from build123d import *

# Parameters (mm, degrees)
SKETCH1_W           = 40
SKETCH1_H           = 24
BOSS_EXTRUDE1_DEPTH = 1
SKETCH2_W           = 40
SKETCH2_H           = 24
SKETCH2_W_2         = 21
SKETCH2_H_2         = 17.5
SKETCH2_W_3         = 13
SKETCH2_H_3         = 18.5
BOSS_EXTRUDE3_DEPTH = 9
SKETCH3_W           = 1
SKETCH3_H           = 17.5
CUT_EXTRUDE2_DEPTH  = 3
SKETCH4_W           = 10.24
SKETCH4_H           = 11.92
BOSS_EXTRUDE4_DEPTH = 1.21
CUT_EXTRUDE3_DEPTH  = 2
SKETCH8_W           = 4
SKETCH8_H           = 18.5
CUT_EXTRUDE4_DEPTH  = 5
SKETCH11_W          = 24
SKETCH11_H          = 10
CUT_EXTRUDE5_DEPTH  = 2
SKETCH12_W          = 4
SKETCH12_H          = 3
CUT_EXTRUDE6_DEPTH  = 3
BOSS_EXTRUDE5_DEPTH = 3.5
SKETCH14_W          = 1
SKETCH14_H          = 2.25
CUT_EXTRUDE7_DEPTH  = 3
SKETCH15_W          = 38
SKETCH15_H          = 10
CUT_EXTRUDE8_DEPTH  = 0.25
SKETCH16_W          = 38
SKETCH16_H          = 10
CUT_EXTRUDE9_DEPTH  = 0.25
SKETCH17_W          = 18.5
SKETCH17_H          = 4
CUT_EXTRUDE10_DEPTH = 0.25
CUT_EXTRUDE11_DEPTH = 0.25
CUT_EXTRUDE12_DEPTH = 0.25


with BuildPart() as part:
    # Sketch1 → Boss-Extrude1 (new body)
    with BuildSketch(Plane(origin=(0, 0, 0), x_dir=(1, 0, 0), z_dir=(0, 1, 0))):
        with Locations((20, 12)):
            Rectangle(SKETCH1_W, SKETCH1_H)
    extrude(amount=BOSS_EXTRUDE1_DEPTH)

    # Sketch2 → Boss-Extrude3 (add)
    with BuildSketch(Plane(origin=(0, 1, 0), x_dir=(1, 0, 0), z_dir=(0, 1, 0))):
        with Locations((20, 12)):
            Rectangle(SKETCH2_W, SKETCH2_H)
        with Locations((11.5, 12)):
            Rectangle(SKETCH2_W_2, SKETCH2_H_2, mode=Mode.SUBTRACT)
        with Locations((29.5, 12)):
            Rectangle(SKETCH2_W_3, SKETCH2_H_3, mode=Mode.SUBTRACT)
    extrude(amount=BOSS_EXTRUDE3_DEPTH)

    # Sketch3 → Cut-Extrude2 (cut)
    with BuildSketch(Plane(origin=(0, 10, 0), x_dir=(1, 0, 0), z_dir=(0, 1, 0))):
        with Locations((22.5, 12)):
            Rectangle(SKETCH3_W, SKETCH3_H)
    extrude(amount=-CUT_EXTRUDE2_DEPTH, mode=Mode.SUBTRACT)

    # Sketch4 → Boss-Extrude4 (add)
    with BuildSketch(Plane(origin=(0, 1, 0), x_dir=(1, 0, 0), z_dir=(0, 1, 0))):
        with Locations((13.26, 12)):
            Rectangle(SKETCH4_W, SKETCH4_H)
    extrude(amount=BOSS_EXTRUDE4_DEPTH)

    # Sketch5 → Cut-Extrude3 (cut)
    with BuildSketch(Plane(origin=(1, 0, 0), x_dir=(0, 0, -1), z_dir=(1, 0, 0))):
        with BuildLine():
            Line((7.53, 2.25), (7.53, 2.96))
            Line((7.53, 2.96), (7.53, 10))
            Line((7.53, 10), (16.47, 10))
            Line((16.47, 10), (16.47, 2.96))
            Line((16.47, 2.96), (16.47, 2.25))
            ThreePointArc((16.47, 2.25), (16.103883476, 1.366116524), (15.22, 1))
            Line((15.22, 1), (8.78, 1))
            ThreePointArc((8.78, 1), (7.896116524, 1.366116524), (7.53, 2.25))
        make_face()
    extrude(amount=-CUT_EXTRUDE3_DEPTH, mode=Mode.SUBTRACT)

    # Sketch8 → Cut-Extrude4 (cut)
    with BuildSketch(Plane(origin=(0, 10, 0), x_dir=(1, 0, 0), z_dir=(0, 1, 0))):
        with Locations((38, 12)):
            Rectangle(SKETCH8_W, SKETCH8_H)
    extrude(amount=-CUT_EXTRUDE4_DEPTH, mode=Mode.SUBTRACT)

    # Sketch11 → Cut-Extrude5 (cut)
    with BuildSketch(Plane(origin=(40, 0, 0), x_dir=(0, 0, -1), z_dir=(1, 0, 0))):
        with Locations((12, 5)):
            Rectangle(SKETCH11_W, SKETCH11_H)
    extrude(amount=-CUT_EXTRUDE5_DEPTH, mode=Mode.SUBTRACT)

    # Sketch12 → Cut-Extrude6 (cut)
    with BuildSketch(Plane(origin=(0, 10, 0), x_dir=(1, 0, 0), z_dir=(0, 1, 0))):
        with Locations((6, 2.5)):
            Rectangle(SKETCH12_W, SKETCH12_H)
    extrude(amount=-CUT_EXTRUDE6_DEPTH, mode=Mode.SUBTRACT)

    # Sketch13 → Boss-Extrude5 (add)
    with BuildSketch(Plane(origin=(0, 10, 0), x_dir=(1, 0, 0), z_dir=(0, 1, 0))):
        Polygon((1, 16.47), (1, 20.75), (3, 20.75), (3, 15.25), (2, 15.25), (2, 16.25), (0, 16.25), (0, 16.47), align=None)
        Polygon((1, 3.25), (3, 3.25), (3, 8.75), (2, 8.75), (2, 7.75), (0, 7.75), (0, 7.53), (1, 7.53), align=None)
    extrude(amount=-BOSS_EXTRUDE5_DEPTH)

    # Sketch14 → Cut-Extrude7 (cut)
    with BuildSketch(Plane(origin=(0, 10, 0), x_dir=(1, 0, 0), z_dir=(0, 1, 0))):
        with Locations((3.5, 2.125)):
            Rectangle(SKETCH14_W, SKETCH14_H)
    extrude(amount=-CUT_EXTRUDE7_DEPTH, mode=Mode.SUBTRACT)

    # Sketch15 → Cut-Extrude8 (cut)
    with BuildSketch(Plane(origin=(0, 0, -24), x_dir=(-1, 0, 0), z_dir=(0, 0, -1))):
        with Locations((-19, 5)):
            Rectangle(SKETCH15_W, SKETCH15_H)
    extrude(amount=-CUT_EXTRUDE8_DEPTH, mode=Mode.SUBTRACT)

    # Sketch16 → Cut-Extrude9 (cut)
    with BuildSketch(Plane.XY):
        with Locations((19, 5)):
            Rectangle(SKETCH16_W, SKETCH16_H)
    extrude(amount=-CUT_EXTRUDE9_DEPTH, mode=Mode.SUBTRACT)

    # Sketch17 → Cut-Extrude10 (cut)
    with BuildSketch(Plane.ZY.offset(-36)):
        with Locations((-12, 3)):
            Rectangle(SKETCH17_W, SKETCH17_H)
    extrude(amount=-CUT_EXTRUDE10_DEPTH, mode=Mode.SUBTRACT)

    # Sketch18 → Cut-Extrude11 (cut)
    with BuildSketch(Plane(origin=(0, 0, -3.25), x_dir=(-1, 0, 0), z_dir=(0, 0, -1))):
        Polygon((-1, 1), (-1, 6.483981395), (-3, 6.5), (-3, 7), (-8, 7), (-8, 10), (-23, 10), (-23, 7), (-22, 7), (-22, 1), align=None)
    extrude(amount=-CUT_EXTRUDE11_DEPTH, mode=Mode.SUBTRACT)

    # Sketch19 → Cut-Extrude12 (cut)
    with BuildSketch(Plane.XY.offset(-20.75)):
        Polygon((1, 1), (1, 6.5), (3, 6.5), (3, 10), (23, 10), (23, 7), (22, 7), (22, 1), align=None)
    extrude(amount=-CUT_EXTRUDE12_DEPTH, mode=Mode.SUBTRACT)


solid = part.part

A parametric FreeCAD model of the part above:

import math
import FreeCAD as App
import Part
import Sketcher
from FreeCAD import Vector

doc = App.newDocument("Part")
body = doc.addObject("PartDesign::Body", "Body")

sketch1 = doc.addObject("Sketcher::SketchObject", "Sketch")
body.addObject(sketch1)
sketch1.AttachmentSupport = (doc.XZ_Plane, [""])
sketch1.MapMode = "FlatFace"
sketch1.addGeometry([
    Part.LineSegment(Vector(0, -24, 0), Vector(0, 0, 0)),
    Part.LineSegment(Vector(0, 0, 0), Vector(40, 0, 0)),
    Part.LineSegment(Vector(40, 0, 0), Vector(40, -24, 0)),
    Part.LineSegment(Vector(40, -24, 0), Vector(0, -24, 0)),
], False)
sketch1.addConstraint([
    Sketcher.Constraint("Coincident", 0, 2, 1, 1),
    Sketcher.Constraint("Coincident", 1, 2, 2, 1),
    Sketcher.Constraint("Coincident", 2, 2, 3, 1),
    Sketcher.Constraint("Coincident", 3, 2, 0, 1),
    Sketcher.Constraint("Vertical", 0),
    Sketcher.Constraint("Horizontal", 1),
    Sketcher.Constraint("Vertical", 2),
    Sketcher.Constraint("Horizontal", 3),
    Sketcher.Constraint("Coincident", 0, 2, -1, 1),
    Sketcher.Constraint("DistanceX", 1, 1, 1, 2, 40.0),
    Sketcher.Constraint("DistanceY", 0, 1, 0, 2, 24.0),
])
pad1 = doc.addObject("PartDesign::Pad", "Pad")
body.addObject(pad1)
pad1.Profile = sketch1
pad1.Length = 1
pad1.Reversed = True

sketch2 = doc.addObject("Sketcher::SketchObject", "Sketch001")
body.addObject(sketch2)
sketch2.AttachmentSupport = (doc.XZ_Plane, [""])
sketch2.MapMode = "FlatFace"
sketch2.AttachmentOffset = App.Placement(Vector(0, 0, -1), App.Rotation())
sketch2.addGeometry([
    Part.LineSegment(Vector(0, -24, 0), Vector(0, 0, 0)),
    Part.LineSegment(Vector(0, 0, 0), Vector(40, 0, 0)),
    Part.LineSegment(Vector(40, 0, 0), Vector(40, -24, 0)),
    Part.LineSegment(Vector(40, -24, 0), Vector(0, -24, 0)),
    Part.LineSegment(Vector(22, -3, 0), Vector(1, -3, 0)),
    Part.LineSegment(Vector(1, -3, 0), Vector(1, -21, 0)),
    Part.LineSegment(Vector(1, -21, 0), Vector(22, -21, 0)),
    Part.LineSegment(Vector(22, -21, 0), Vector(22, -3, 0)),
    Part.LineSegment(Vector(36, -3, 0), Vector(23, -3, 0)),
    Part.LineSegment(Vector(23, -3, 0), Vector(23, -21, 0)),
    Part.LineSegment(Vector(23, -21, 0), Vector(36, -21, 0)),
    Part.LineSegment(Vector(36, -21, 0), Vector(36, -3, 0)),
], False)
sketch2.addConstraint([
    Sketcher.Constraint("Coincident", 0, 2, 1, 1),
    Sketcher.Constraint("Coincident", 1, 2, 2, 1),
    Sketcher.Constraint("Coincident", 2, 2, 3, 1),
    Sketcher.Constraint("Coincident", 3, 2, 0, 1),
    Sketcher.Constraint("Coincident", 4, 2, 5, 1),
    Sketcher.Constraint("Coincident", 5, 2, 6, 1),
    Sketcher.Constraint("Coincident", 6, 2, 7, 1),
    Sketcher.Constraint("Coincident", 7, 2, 4, 1),
    Sketcher.Constraint("Coincident", 8, 2, 9, 1),
    Sketcher.Constraint("Coincident", 9, 2, 10, 1),
    Sketcher.Constraint("Coincident", 10, 2, 11, 1),
    Sketcher.Constraint("Coincident", 11, 2, 8, 1),
    Sketcher.Constraint("Vertical", 0),
    Sketcher.Constraint("Horizontal", 1),
    Sketcher.Constraint("Vertical", 2),
    Sketcher.Constraint("Horizontal", 3),
    Sketcher.Constraint("Horizontal", 4),
    Sketcher.Constraint("Vertical", 5),
    Sketcher.Constraint("Horizontal", 6),
    Sketcher.Constraint("Vertical", 7),
    Sketcher.Constraint("Horizontal", 8),
    Sketcher.Constraint("Vertical", 9),
    Sketcher.Constraint("Horizontal", 10),
    Sketcher.Constraint("Vertical", 11),
    Sketcher.Constraint("Coincident", 0, 2, -1, 1),
    Sketcher.Constraint("DistanceX", 1, 1, 1, 2, 40.0),
    Sketcher.Constraint("DistanceX", 4, 2, 4, 1, 21.0),
    Sketcher.Constraint("DistanceX", 8, 2, 8, 1, 13.0),
    Sketcher.Constraint("DistanceY", 0, 1, 0, 2, 24.0),
    Sketcher.Constraint("DistanceY", 5, 2, 5, 1, 17.5),
    Sketcher.Constraint("DistanceY", 9, 2, 9, 1, 18.5),
    Sketcher.Constraint("DistanceX", -1, 1, 4, 2, 1.0),
    Sketcher.Constraint("DistanceX", -1, 1, 8, 2, 23.0),
    Sketcher.Constraint("DistanceY", 6, 2, 8, 2, 18.0),
    Sketcher.Constraint("DistanceY", 4, 2, -1, 1, 3.25),
])
pad2 = doc.addObject("PartDesign::Pad", "Pad001")
body.addObject(pad2)
pad2.Profile = sketch2
pad2.Length = 9
pad2.Reversed = True

sketch3 = doc.addObject("Sketcher::SketchObject", "Sketch002")
body.addObject(sketch3)
sketch3.AttachmentSupport = (doc.XZ_Plane, [""])
sketch3.MapMode = "FlatFace"
sketch3.AttachmentOffset = App.Placement(Vector(0, 0, -10), App.Rotation())
sketch3.addGeometry([
    Part.LineSegment(Vector(22, -20.8, 0), Vector(22, -3.2, 0)),
    Part.LineSegment(Vector(22, -3.2, 0), Vector(23, -3.2, 0)),
    Part.LineSegment(Vector(23, -3.2, 0), Vector(23, -20.8, 0)),
    Part.LineSegment(Vector(23, -20.8, 0), Vector(22, -20.8, 0)),
], False)
sketch3.addConstraint([
    Sketcher.Constraint("Coincident", 0, 2, 1, 1),
    Sketcher.Constraint("Coincident", 1, 2, 2, 1),
    Sketcher.Constraint("Coincident", 2, 2, 3, 1),
    Sketcher.Constraint("Coincident", 3, 2, 0, 1),
    Sketcher.Constraint("Vertical", 0),
    Sketcher.Constraint("Horizontal", 1),
    Sketcher.Constraint("Vertical", 2),
    Sketcher.Constraint("Horizontal", 3),
    Sketcher.Constraint("DistanceX", 1, 1, 1, 2, 1.0),
    Sketcher.Constraint("DistanceY", 0, 1, 0, 2, 17.5),
    Sketcher.Constraint("DistanceX", -1, 1, 0, 2, 22.0),
    Sketcher.Constraint("DistanceY", 0, 2, -1, 1, 3.25),
])
pocket1 = doc.addObject("PartDesign::Pocket", "Pocket")
body.addObject(pocket1)
pocket1.Profile = sketch3
pocket1.Length = 3
pocket1.Reversed = True

sketch4 = doc.addObject("Sketcher::SketchObject", "Sketch003")
body.addObject(sketch4)
sketch4.AttachmentSupport = (doc.XZ_Plane, [""])
sketch4.MapMode = "FlatFace"
sketch4.AttachmentOffset = App.Placement(Vector(0, 0, -1), App.Rotation())
sketch4.addGeometry([
    Part.LineSegment(Vector(8, -18, 0), Vector(8, -6, 0)),
    Part.LineSegment(Vector(8, -6, 0), Vector(18, -6, 0)),
    Part.LineSegment(Vector(18, -6, 0), Vector(18, -18, 0)),
    Part.LineSegment(Vector(18, -18, 0), Vector(8, -18, 0)),
], False)
sketch4.addConstraint([
    Sketcher.Constraint("Coincident", 0, 2, 1, 1),
    Sketcher.Constraint("Coincident", 1, 2, 2, 1),
    Sketcher.Constraint("Coincident", 2, 2, 3, 1),
    Sketcher.Constraint("Coincident", 3, 2, 0, 1),
    Sketcher.Constraint("Vertical", 0),
    Sketcher.Constraint("Horizontal", 1),
    Sketcher.Constraint("Vertical", 2),
    Sketcher.Constraint("Horizontal", 3),
    Sketcher.Constraint("DistanceX", 1, 1, 1, 2, 10.24),
    Sketcher.Constraint("DistanceY", 0, 1, 0, 2, 11.92),
    Sketcher.Constraint("DistanceX", -1, 1, 0, 2, 8.14),
    Sketcher.Constraint("DistanceY", 0, 2, -1, 1, 6.04),
])
pad3 = doc.addObject("PartDesign::Pad", "Pad002")
body.addObject(pad3)
pad3.Profile = sketch4
pad3.Length = 1.21
pad3.Reversed = True

sketch5 = doc.addObject("Sketcher::SketchObject", "Sketch004")
body.addObject(sketch5)
sketch5.AttachmentSupport = (doc.YZ_Plane, [""])
sketch5.MapMode = "FlatFace"
sketch5.AttachmentOffset = App.Placement(Vector(0, 0, 1), App.Rotation())
sketch5.addGeometry([
    Part.LineSegment(Vector(10, -7.5, 0), Vector(2.2, -7.5, 0)),
    Part.ArcOfCircle(Part.Circle(Vector(2.3, -8.8, 0), Vector(0, 0, 1), 1.3), math.radians(90), math.radians(180)),
    Part.LineSegment(Vector(1, -8.8, 0), Vector(1, -15.2, 0)),
    Part.ArcOfCircle(Part.Circle(Vector(2.3, -15.2, 0), Vector(0, 0, 1), 1.3), math.radians(-180), math.radians(-90)),
    Part.LineSegment(Vector(2.2, -16.5, 0), Vector(10, -16.5, 0)),
    Part.LineSegment(Vector(10, -16.5, 0), Vector(10, -7.5, 0)),
], False)
sketch5.addConstraint([
    Sketcher.Constraint("Tangent", 0, 2, 1, 1),
    Sketcher.Constraint("Tangent", 1, 2, 2, 1),
    Sketcher.Constraint("Tangent", 2, 2, 3, 1),
    Sketcher.Constraint("Tangent", 3, 2, 4, 1),
    Sketcher.Constraint("Coincident", 4, 2, 5, 1),
    Sketcher.Constraint("Coincident", 5, 2, 0, 1),
    Sketcher.Constraint("Horizontal", 0),
    Sketcher.Constraint("Vertical", 2),
    Sketcher.Constraint("Horizontal", 4),
    Sketcher.Constraint("Vertical", 5),
    Sketcher.Constraint("Equal", 1, 3),
    Sketcher.Constraint("Radius", 1, 1.25),
    Sketcher.Constraint("DistanceX", -1, 1, 1, 2, 1.0),
    Sketcher.Constraint("DistanceX", -1, 1, 4, 2, 10.0),
    Sketcher.Constraint("DistanceY", 2, 2, 2, 1, 6.44),
    Sketcher.Constraint("DistanceY", 1, 3, -1, 1, 8.78),
])
pocket2 = doc.addObject("PartDesign::Pocket", "Pocket001")
body.addObject(pocket2)
pocket2.Profile = sketch5
pocket2.Length = 2

sketch6 = doc.addObject("Sketcher::SketchObject", "Sketch005")
body.addObject(sketch6)
sketch6.AttachmentSupport = (doc.XZ_Plane, [""])
sketch6.MapMode = "FlatFace"
sketch6.AttachmentOffset = App.Placement(Vector(0, 0, -10), App.Rotation())
sketch6.addGeometry([
    Part.LineSegment(Vector(36, -21.2, 0), Vector(36, -2.8, 0)),
    Part.LineSegment(Vector(36, -2.8, 0), Vector(40, -2.8, 0)),
    Part.LineSegment(Vector(40, -2.8, 0), Vector(40, -21.2, 0)),
    Part.LineSegment(Vector(40, -21.2, 0), Vector(36, -21.2, 0)),
], False)
sketch6.addConstraint([
    Sketcher.Constraint("Coincident", 0, 2, 1, 1),
    Sketcher.Constraint("Coincident", 1, 2, 2, 1),
    Sketcher.Constraint("Coincident", 2, 2, 3, 1),
    Sketcher.Constraint("Coincident", 3, 2, 0, 1),
    Sketcher.Constraint("Vertical", 0),
    Sketcher.Constraint("Horizontal", 1),
    Sketcher.Constraint("Vertical", 2),
    Sketcher.Constraint("Horizontal", 3),
    Sketcher.Constraint("DistanceX", 1, 1, 1, 2, 4.0),
    Sketcher.Constraint("DistanceY", 0, 1, 0, 2, 18.5),
    Sketcher.Constraint("DistanceX", -1, 1, 0, 2, 36.0),
    Sketcher.Constraint("DistanceY", 0, 2, -1, 1, 2.75),
])
pocket3 = doc.addObject("PartDesign::Pocket", "Pocket002")
body.addObject(pocket3)
pocket3.Profile = sketch6
pocket3.Length = 5
pocket3.Reversed = True

sketch7 = doc.addObject("Sketcher::SketchObject", "Sketch006")
body.addObject(sketch7)
sketch7.AttachmentSupport = (doc.YZ_Plane, [""])
sketch7.MapMode = "FlatFace"
sketch7.AttachmentOffset = App.Placement(Vector(0, 0, 40), App.Rotation())
sketch7.addGeometry([
    Part.LineSegment(Vector(10, 0, 0), Vector(0, 0, 0)),
    Part.LineSegment(Vector(0, 0, 0), Vector(0, -24, 0)),
    Part.LineSegment(Vector(0, -24, 0), Vector(10, -24, 0)),
    Part.LineSegment(Vector(10, -24, 0), Vector(10, 0, 0)),
], False)
sketch7.addConstraint([
    Sketcher.Constraint("Coincident", 0, 2, 1, 1),
    Sketcher.Constraint("Coincident", 1, 2, 2, 1),
    Sketcher.Constraint("Coincident", 2, 2, 3, 1),
    Sketcher.Constraint("Coincident", 3, 2, 0, 1),
    Sketcher.Constraint("Horizontal", 0),
    Sketcher.Constraint("Vertical", 1),
    Sketcher.Constraint("Horizontal", 2),
    Sketcher.Constraint("Vertical", 3),
    Sketcher.Constraint("Coincident", 0, 2, -1, 1),
    Sketcher.Constraint("DistanceX", 0, 2, 0, 1, 10.0),
    Sketcher.Constraint("DistanceY", 1, 2, 1, 1, 24.0),
])
pocket4 = doc.addObject("PartDesign::Pocket", "Pocket003")
body.addObject(pocket4)
pocket4.Profile = sketch7
pocket4.Length = 2

sketch8 = doc.addObject("Sketcher::SketchObject", "Sketch007")
body.addObject(sketch8)
sketch8.AttachmentSupport = (doc.XZ_Plane, [""])
sketch8.MapMode = "FlatFace"
sketch8.AttachmentOffset = App.Placement(Vector(0, 0, -10), App.Rotation())
sketch8.addGeometry([
    Part.LineSegment(Vector(4, -4, 0), Vector(4, -1, 0)),
    Part.LineSegment(Vector(4, -1, 0), Vector(8, -1, 0)),
    Part.LineSegment(Vector(8, -1, 0), Vector(8, -4, 0)),
    Part.LineSegment(Vector(8, -4, 0), Vector(4, -4, 0)),
], False)
sketch8.addConstraint([
    Sketcher.Constraint("Coincident", 0, 2, 1, 1),
    Sketcher.Constraint("Coincident", 1, 2, 2, 1),
    Sketcher.Constraint("Coincident", 2, 2, 3, 1),
    Sketcher.Constraint("Coincident", 3, 2, 0, 1),
    Sketcher.Constraint("Vertical", 0),
    Sketcher.Constraint("Horizontal", 1),
    Sketcher.Constraint("Vertical", 2),
    Sketcher.Constraint("Horizontal", 3),
    Sketcher.Constraint("DistanceX", 1, 1, 1, 2, 4.0),
    Sketcher.Constraint("DistanceY", 0, 1, 0, 2, 3.0),
    Sketcher.Constraint("DistanceX", -1, 1, 0, 2, 4.0),
    Sketcher.Constraint("DistanceY", 0, 2, -1, 1, 1.0),
])
pocket5 = doc.addObject("PartDesign::Pocket", "Pocket004")
body.addObject(pocket5)
pocket5.Profile = sketch8
pocket5.Length = 3
pocket5.Reversed = True

sketch9 = doc.addObject("Sketcher::SketchObject", "Sketch008")
body.addObject(sketch9)
sketch9.AttachmentSupport = (doc.XZ_Plane, [""])
sketch9.MapMode = "FlatFace"
sketch9.AttachmentOffset = App.Placement(Vector(0, 0, -10), App.Rotation())
sketch9.addGeometry([
    Part.LineSegment(Vector(1, -20.75, 0), Vector(1, -16.47, 0)),
    Part.LineSegment(Vector(1, -16.47, 0), Vector(0, -16.47, 0)),
    Part.LineSegment(Vector(0, -16.47, 0), Vector(0, -16.25, 0)),
    Part.LineSegment(Vector(0, -16.25, 0), Vector(2, -16.25, 0)),
    Part.LineSegment(Vector(2, -16.25, 0), Vector(2, -15.25, 0)),
    Part.LineSegment(Vector(2, -15.25, 0), Vector(3, -15.25, 0)),
    Part.LineSegment(Vector(3, -15.25, 0), Vector(3, -20.75, 0)),
    Part.LineSegment(Vector(3, -20.75, 0), Vector(1, -20.75, 0)),
    Part.LineSegment(Vector(1, -3.25, 0), Vector(3, -3.25, 0)),
    Part.LineSegment(Vector(3, -3.25, 0), Vector(3, -8.75, 0)),
    Part.LineSegment(Vector(3, -8.75, 0), Vector(2, -8.75, 0)),
    Part.LineSegment(Vector(2, -8.75, 0), Vector(2, -7.75, 0)),
    Part.LineSegment(Vector(2, -7.75, 0), Vector(0, -7.75, 0)),
    Part.LineSegment(Vector(0, -7.75, 0), Vector(0, -7.53, 0)),
    Part.LineSegment(Vector(0, -7.53, 0), Vector(1, -7.53, 0)),
    Part.LineSegment(Vector(1, -7.53, 0), Vector(1, -3.25, 0)),
], False)
sketch9.addConstraint([
    Sketcher.Constraint("Coincident", 0, 2, 1, 1),
    Sketcher.Constraint("Coincident", 1, 2, 2, 1),
    Sketcher.Constraint("Coincident", 2, 2, 3, 1),
    Sketcher.Constraint("Coincident", 3, 2, 4, 1),
    Sketcher.Constraint("Coincident", 4, 2, 5, 1),
    Sketcher.Constraint("Coincident", 5, 2, 6, 1),
    Sketcher.Constraint("Coincident", 6, 2, 7, 1),
    Sketcher.Constraint("Coincident", 7, 2, 0, 1),
    Sketcher.Constraint("Coincident", 8, 2, 9, 1),
    Sketcher.Constraint("Coincident", 9, 2, 10, 1),
    Sketcher.Constraint("Coincident", 10, 2, 11, 1),
    Sketcher.Constraint("Coincident", 11, 2, 12, 1),
    Sketcher.Constraint("Coincident", 12, 2, 13, 1),
    Sketcher.Constraint("Coincident", 13, 2, 14, 1),
    Sketcher.Constraint("Coincident", 14, 2, 15, 1),
    Sketcher.Constraint("Coincident", 15, 2, 8, 1),
    Sketcher.Constraint("Vertical", 0),
    Sketcher.Constraint("Horizontal", 1),
    Sketcher.Constraint("Vertical", 2),
    Sketcher.Constraint("Horizontal", 3),
    Sketcher.Constraint("Vertical", 4),
    Sketcher.Constraint("Horizontal", 5),
    Sketcher.Constraint("Vertical", 6),
    Sketcher.Constraint("Horizontal", 7),
    Sketcher.Constraint("Horizontal", 8),
    Sketcher.Constraint("Vertical", 9),
    Sketcher.Constraint("Horizontal", 10),
    Sketcher.Constraint("Vertical", 11),
    Sketcher.Constraint("Horizontal", 12),
    Sketcher.Constraint("Vertical", 13),
    Sketcher.Constraint("Horizontal", 14),
    Sketcher.Constraint("Vertical", 15),
    Sketcher.Constraint("PointOnObject", 1, 2, -2),
    Sketcher.Constraint("PointOnObject", 12, 2, -2),
    Sketcher.Constraint("Vertical", 6, 2, 8, 2),
    Sketcher.Constraint("Vertical", 4, 2, 10, 2),
    Sketcher.Constraint("Vertical", 7, 2, 14, 2),
    Sketcher.Constraint("Equal", 1, 5),
    Sketcher.Constraint("Equal", 14, 4),
    Sketcher.Constraint("Equal", 6, 9),
    Sketcher.Constraint("Equal", 4, 11),
    Sketcher.Constraint("Equal", 2, 13),
    Sketcher.Constraint("DistanceX", 1, 2, 1, 1, 1.0),
    Sketcher.Constraint("DistanceX", 3, 1, 3, 2, 2.0),
    Sketcher.Constraint("DistanceY", 6, 2, 6, 1, 5.5),
    Sketcher.Constraint("DistanceY", 5, 2, 8, 2, 12.0),
    Sketcher.Constraint("DistanceY", 0, 1, 0, 2, 4.28),
    Sketcher.Constraint("DistanceY", 0, 2, -1, 1, 16.47),
])
pad4 = doc.addObject("PartDesign::Pad", "Pad003")
body.addObject(pad4)
pad4.Profile = sketch9
pad4.Length = 3.5

sketch10 = doc.addObject("Sketcher::SketchObject", "Sketch009")
body.addObject(sketch10)
sketch10.AttachmentSupport = (doc.XZ_Plane, [""])
sketch10.MapMode = "FlatFace"
sketch10.AttachmentOffset = App.Placement(Vector(0, 0, -10), App.Rotation())
sketch10.addGeometry([
    Part.LineSegment(Vector(3, -3.2, 0), Vector(3, -1, 0)),
    Part.LineSegment(Vector(3, -1, 0), Vector(4, -1, 0)),
    Part.LineSegment(Vector(4, -1, 0), Vector(4, -3.2, 0)),
    Part.LineSegment(Vector(4, -3.2, 0), Vector(3, -3.2, 0)),
], False)
sketch10.addConstraint([
    Sketcher.Constraint("Coincident", 0, 2, 1, 1),
    Sketcher.Constraint("Coincident", 1, 2, 2, 1),
    Sketcher.Constraint("Coincident", 2, 2, 3, 1),
    Sketcher.Constraint("Coincident", 3, 2, 0, 1),
    Sketcher.Constraint("Vertical", 0),
    Sketcher.Constraint("Horizontal", 1),
    Sketcher.Constraint("Vertical", 2),
    Sketcher.Constraint("Horizontal", 3),
    Sketcher.Constraint("DistanceX", 1, 1, 1, 2, 1.0),
    Sketcher.Constraint("DistanceX", -1, 1, 0, 2, 3.0),
    Sketcher.Constraint("DistanceY", 0, 2, -1, 1, 1.0),
    Sketcher.Constraint("DistanceY", 0, 1, 0, 2, 2.25),
])
pocket6 = doc.addObject("PartDesign::Pocket", "Pocket005")
body.addObject(pocket6)
pocket6.Profile = sketch10
pocket6.Length = 3
pocket6.Reversed = True

sketch11 = doc.addObject("Sketcher::SketchObject", "Sketch010")
body.addObject(sketch11)
sketch11.AttachmentSupport = (doc.XY_Plane, [""])
sketch11.MapMode = "FlatFace"
sketch11.AttachmentOffset = App.Placement(Vector(0, 0, -24), App.Rotation())
sketch11.addGeometry([
    Part.LineSegment(Vector(38, 10, 0), Vector(38, 0, 0)),
    Part.LineSegment(Vector(38, 0, 0), Vector(0, 0, 0)),
    Part.LineSegment(Vector(0, 0, 0), Vector(0, 10, 0)),
    Part.LineSegment(Vector(0, 10, 0), Vector(38, 10, 0)),
], False)
sketch11.addConstraint([
    Sketcher.Constraint("Coincident", 0, 2, 1, 1),
    Sketcher.Constraint("Coincident", 1, 2, 2, 1),
    Sketcher.Constraint("Coincident", 2, 2, 3, 1),
    Sketcher.Constraint("Coincident", 3, 2, 0, 1),
    Sketcher.Constraint("Vertical", 0),
    Sketcher.Constraint("Horizontal", 1),
    Sketcher.Constraint("Vertical", 2),
    Sketcher.Constraint("Horizontal", 3),
    Sketcher.Constraint("Coincident", 1, 2, -1, 1),
    Sketcher.Constraint("DistanceX", 1, 2, 1, 1, 38.0),
    Sketcher.Constraint("DistanceY", 0, 2, 0, 1, 10.0),
])
pocket7 = doc.addObject("PartDesign::Pocket", "Pocket006")
body.addObject(pocket7)
pocket7.Profile = sketch11
pocket7.Length = 0.25
pocket7.Reversed = True

sketch12 = doc.addObject("Sketcher::SketchObject", "Sketch011")
body.addObject(sketch12)
sketch12.AttachmentSupport = (doc.XY_Plane, [""])
sketch12.MapMode = "FlatFace"
sketch12.addGeometry([
    Part.LineSegment(Vector(0, 10, 0), Vector(0, 0, 0)),
    Part.LineSegment(Vector(0, 0, 0), Vector(38, 0, 0)),
    Part.LineSegment(Vector(38, 0, 0), Vector(38, 10, 0)),
    Part.LineSegment(Vector(38, 10, 0), Vector(0, 10, 0)),
], False)
sketch12.addConstraint([
    Sketcher.Constraint("Coincident", 0, 2, 1, 1),
    Sketcher.Constraint("Coincident", 1, 2, 2, 1),
    Sketcher.Constraint("Coincident", 2, 2, 3, 1),
    Sketcher.Constraint("Coincident", 3, 2, 0, 1),
    Sketcher.Constraint("Vertical", 0),
    Sketcher.Constraint("Horizontal", 1),
    Sketcher.Constraint("Vertical", 2),
    Sketcher.Constraint("Horizontal", 3),
    Sketcher.Constraint("Coincident", 0, 2, -1, 1),
    Sketcher.Constraint("DistanceX", 1, 1, 1, 2, 38.0),
    Sketcher.Constraint("DistanceY", 0, 2, 0, 1, 10.0),
])
pocket8 = doc.addObject("PartDesign::Pocket", "Pocket007")
body.addObject(pocket8)
pocket8.Profile = sketch12
pocket8.Length = 0.25

sketch13 = doc.addObject("Sketcher::SketchObject", "Sketch012")
body.addObject(sketch13)
sketch13.AttachmentSupport = (doc.YZ_Plane, [""])
sketch13.MapMode = "FlatFace"
sketch13.AttachmentOffset = App.Placement(Vector(0, 0, 36), App.Rotation())
sketch13.addGeometry([
    Part.LineSegment(Vector(5, -21.2, 0), Vector(1, -21.2, 0)),
    Part.LineSegment(Vector(1, -21.2, 0), Vector(1, -2.8, 0)),
    Part.LineSegment(Vector(1, -2.8, 0), Vector(5, -2.8, 0)),
    Part.LineSegment(Vector(5, -2.8, 0), Vector(5, -21.2, 0)),
], False)
sketch13.addConstraint([
    Sketcher.Constraint("Coincident", 0, 2, 1, 1),
    Sketcher.Constraint("Coincident", 1, 2, 2, 1),
    Sketcher.Constraint("Coincident", 2, 2, 3, 1),
    Sketcher.Constraint("Coincident", 3, 2, 0, 1),
    Sketcher.Constraint("Horizontal", 0),
    Sketcher.Constraint("Vertical", 1),
    Sketcher.Constraint("Horizontal", 2),
    Sketcher.Constraint("Vertical", 3),
    Sketcher.Constraint("DistanceX", 0, 2, 0, 1, 4.0),
    Sketcher.Constraint("DistanceY", 1, 1, 1, 2, 18.5),
    Sketcher.Constraint("DistanceX", -1, 1, 0, 2, 1.0),
    Sketcher.Constraint("DistanceY", 0, 2, -1, 1, 21.25),
])
pocket9 = doc.addObject("PartDesign::Pocket", "Pocket008")
body.addObject(pocket9)
pocket9.Profile = sketch13
pocket9.Length = 0.25
pocket9.Reversed = True

sketch14 = doc.addObject("Sketcher::SketchObject", "Sketch013")
body.addObject(sketch14)
sketch14.AttachmentSupport = (doc.XY_Plane, [""])
sketch14.MapMode = "FlatFace"
sketch14.AttachmentOffset = App.Placement(Vector(0, 0, -3.25), App.Rotation())
sketch14.addGeometry([
    Part.LineSegment(Vector(1, 1, 0), Vector(1, 6.5, 0)),
    Part.LineSegment(Vector(1, 6.5, 0), Vector(3, 6.5, 0)),
    Part.LineSegment(Vector(3, 6.5, 0), Vector(3, 7, 0)),
    Part.LineSegment(Vector(3, 7, 0), Vector(8, 7, 0)),
    Part.LineSegment(Vector(8, 7, 0), Vector(8, 10, 0)),
    Part.LineSegment(Vector(8, 10, 0), Vector(23, 10, 0)),
    Part.LineSegment(Vector(23, 10, 0), Vector(23, 7, 0)),
    Part.LineSegment(Vector(23, 7, 0), Vector(22, 7, 0)),
    Part.LineSegment(Vector(22, 7, 0), Vector(22, 1, 0)),
    Part.LineSegment(Vector(22, 1, 0), Vector(1, 1, 0)),
], False)
sketch14.addConstraint([
    Sketcher.Constraint("Coincident", 0, 2, 1, 1),
    Sketcher.Constraint("Coincident", 1, 2, 2, 1),
    Sketcher.Constraint("Coincident", 2, 2, 3, 1),
    Sketcher.Constraint("Coincident", 3, 2, 4, 1),
    Sketcher.Constraint("Coincident", 4, 2, 5, 1),
    Sketcher.Constraint("Coincident", 5, 2, 6, 1),
    Sketcher.Constraint("Coincident", 6, 2, 7, 1),
    Sketcher.Constraint("Coincident", 7, 2, 8, 1),
    Sketcher.Constraint("Coincident", 8, 2, 9, 1),
    Sketcher.Constraint("Coincident", 9, 2, 0, 1),
    Sketcher.Constraint("Vertical", 0),
    Sketcher.Constraint("Vertical", 2),
    Sketcher.Constraint("Horizontal", 3),
    Sketcher.Constraint("Vertical", 4),
    Sketcher.Constraint("Horizontal", 5),
    Sketcher.Constraint("Vertical", 6),
    Sketcher.Constraint("Horizontal", 7),
    Sketcher.Constraint("Vertical", 8),
    Sketcher.Constraint("Horizontal", 9),
    Sketcher.Constraint("Horizontal", 3, 2, 6, 2),
    Sketcher.Constraint("DistanceX", 3, 1, 3, 2, 5.0),
    Sketcher.Constraint("DistanceX", 5, 1, 5, 2, 15.0),
    Sketcher.Constraint("DistanceX", 7, 2, 7, 1, 1.0),
    Sketcher.Constraint("DistanceX", 9, 2, 9, 1, 21.0),
    Sketcher.Constraint("DistanceY", 4, 1, 4, 2, 3.0),
    Sketcher.Constraint("DistanceY", 8, 2, 8, 1, 6.0),
    Sketcher.Constraint("DistanceY", 2, 1, 2, 2, 0.5),
    Sketcher.Constraint("DistanceX", -1, 1, 0, 2, 1.0),
    Sketcher.Constraint("DistanceY", -1, 1, 2, 2, 7.0),
    Sketcher.Constraint("DistanceY", 0, 1, 0, 2, 5.483981),
])
pocket10 = doc.addObject("PartDesign::Pocket", "Pocket009")
body.addObject(pocket10)
pocket10.Profile = sketch14
pocket10.Length = 0.25
pocket10.Reversed = True

sketch15 = doc.addObject("Sketcher::SketchObject", "Sketch014")
body.addObject(sketch15)
sketch15.AttachmentSupport = (doc.XY_Plane, [""])
sketch15.MapMode = "FlatFace"
sketch15.AttachmentOffset = App.Placement(Vector(0, 0, -20.75), App.Rotation())
sketch15.addGeometry([
    Part.LineSegment(Vector(1, 6.5, 0), Vector(1, 1, 0)),
    Part.LineSegment(Vector(1, 1, 0), Vector(22, 1, 0)),
    Part.LineSegment(Vector(22, 1, 0), Vector(22, 7, 0)),
    Part.LineSegment(Vector(22, 7, 0), Vector(23, 7, 0)),
    Part.LineSegment(Vector(23, 7, 0), Vector(23, 10, 0)),
    Part.LineSegment(Vector(23, 10, 0), Vector(3, 10, 0)),
    Part.LineSegment(Vector(3, 10, 0), Vector(3, 6.5, 0)),
    Part.LineSegment(Vector(3, 6.5, 0), Vector(1, 6.5, 0)),
], False)
sketch15.addConstraint([
    Sketcher.Constraint("Coincident", 0, 2, 1, 1),
    Sketcher.Constraint("Coincident", 1, 2, 2, 1),
    Sketcher.Constraint("Coincident", 2, 2, 3, 1),
    Sketcher.Constraint("Coincident", 3, 2, 4, 1),
    Sketcher.Constraint("Coincident", 4, 2, 5, 1),
    Sketcher.Constraint("Coincident", 5, 2, 6, 1),
    Sketcher.Constraint("Coincident", 6, 2, 7, 1),
    Sketcher.Constraint("Coincident", 7, 2, 0, 1),
    Sketcher.Constraint("Vertical", 0),
    Sketcher.Constraint("Horizontal", 1),
    Sketcher.Constraint("Vertical", 2),
    Sketcher.Constraint("Horizontal", 3),
    Sketcher.Constraint("Vertical", 4),
    Sketcher.Constraint("Horizontal", 5),
    Sketcher.Constraint("Vertical", 6),
    Sketcher.Constraint("Horizontal", 7),
    Sketcher.Constraint("DistanceX", 1, 1, 1, 2, 21.0),
    Sketcher.Constraint("DistanceX", 3, 1, 3, 2, 1.0),
    Sketcher.Constraint("DistanceX", 5, 2, 5, 1, 20.0),
    Sketcher.Constraint("DistanceY", 2, 1, 2, 2, 6.0),
    Sketcher.Constraint("DistanceY", 4, 1, 4, 2, 3.0),
    Sketcher.Constraint("DistanceY", 0, 2, 0, 1, 5.5),
    Sketcher.Constraint("DistanceX", -1, 1, 0, 2, 1.0),
    Sketcher.Constraint("DistanceY", -1, 1, 0, 2, 1.0),
])
pocket11 = doc.addObject("PartDesign::Pocket", "Pocket010")
body.addObject(pocket11)
pocket11.Profile = sketch15
pocket11.Length = 0.25

doc.recompute()
